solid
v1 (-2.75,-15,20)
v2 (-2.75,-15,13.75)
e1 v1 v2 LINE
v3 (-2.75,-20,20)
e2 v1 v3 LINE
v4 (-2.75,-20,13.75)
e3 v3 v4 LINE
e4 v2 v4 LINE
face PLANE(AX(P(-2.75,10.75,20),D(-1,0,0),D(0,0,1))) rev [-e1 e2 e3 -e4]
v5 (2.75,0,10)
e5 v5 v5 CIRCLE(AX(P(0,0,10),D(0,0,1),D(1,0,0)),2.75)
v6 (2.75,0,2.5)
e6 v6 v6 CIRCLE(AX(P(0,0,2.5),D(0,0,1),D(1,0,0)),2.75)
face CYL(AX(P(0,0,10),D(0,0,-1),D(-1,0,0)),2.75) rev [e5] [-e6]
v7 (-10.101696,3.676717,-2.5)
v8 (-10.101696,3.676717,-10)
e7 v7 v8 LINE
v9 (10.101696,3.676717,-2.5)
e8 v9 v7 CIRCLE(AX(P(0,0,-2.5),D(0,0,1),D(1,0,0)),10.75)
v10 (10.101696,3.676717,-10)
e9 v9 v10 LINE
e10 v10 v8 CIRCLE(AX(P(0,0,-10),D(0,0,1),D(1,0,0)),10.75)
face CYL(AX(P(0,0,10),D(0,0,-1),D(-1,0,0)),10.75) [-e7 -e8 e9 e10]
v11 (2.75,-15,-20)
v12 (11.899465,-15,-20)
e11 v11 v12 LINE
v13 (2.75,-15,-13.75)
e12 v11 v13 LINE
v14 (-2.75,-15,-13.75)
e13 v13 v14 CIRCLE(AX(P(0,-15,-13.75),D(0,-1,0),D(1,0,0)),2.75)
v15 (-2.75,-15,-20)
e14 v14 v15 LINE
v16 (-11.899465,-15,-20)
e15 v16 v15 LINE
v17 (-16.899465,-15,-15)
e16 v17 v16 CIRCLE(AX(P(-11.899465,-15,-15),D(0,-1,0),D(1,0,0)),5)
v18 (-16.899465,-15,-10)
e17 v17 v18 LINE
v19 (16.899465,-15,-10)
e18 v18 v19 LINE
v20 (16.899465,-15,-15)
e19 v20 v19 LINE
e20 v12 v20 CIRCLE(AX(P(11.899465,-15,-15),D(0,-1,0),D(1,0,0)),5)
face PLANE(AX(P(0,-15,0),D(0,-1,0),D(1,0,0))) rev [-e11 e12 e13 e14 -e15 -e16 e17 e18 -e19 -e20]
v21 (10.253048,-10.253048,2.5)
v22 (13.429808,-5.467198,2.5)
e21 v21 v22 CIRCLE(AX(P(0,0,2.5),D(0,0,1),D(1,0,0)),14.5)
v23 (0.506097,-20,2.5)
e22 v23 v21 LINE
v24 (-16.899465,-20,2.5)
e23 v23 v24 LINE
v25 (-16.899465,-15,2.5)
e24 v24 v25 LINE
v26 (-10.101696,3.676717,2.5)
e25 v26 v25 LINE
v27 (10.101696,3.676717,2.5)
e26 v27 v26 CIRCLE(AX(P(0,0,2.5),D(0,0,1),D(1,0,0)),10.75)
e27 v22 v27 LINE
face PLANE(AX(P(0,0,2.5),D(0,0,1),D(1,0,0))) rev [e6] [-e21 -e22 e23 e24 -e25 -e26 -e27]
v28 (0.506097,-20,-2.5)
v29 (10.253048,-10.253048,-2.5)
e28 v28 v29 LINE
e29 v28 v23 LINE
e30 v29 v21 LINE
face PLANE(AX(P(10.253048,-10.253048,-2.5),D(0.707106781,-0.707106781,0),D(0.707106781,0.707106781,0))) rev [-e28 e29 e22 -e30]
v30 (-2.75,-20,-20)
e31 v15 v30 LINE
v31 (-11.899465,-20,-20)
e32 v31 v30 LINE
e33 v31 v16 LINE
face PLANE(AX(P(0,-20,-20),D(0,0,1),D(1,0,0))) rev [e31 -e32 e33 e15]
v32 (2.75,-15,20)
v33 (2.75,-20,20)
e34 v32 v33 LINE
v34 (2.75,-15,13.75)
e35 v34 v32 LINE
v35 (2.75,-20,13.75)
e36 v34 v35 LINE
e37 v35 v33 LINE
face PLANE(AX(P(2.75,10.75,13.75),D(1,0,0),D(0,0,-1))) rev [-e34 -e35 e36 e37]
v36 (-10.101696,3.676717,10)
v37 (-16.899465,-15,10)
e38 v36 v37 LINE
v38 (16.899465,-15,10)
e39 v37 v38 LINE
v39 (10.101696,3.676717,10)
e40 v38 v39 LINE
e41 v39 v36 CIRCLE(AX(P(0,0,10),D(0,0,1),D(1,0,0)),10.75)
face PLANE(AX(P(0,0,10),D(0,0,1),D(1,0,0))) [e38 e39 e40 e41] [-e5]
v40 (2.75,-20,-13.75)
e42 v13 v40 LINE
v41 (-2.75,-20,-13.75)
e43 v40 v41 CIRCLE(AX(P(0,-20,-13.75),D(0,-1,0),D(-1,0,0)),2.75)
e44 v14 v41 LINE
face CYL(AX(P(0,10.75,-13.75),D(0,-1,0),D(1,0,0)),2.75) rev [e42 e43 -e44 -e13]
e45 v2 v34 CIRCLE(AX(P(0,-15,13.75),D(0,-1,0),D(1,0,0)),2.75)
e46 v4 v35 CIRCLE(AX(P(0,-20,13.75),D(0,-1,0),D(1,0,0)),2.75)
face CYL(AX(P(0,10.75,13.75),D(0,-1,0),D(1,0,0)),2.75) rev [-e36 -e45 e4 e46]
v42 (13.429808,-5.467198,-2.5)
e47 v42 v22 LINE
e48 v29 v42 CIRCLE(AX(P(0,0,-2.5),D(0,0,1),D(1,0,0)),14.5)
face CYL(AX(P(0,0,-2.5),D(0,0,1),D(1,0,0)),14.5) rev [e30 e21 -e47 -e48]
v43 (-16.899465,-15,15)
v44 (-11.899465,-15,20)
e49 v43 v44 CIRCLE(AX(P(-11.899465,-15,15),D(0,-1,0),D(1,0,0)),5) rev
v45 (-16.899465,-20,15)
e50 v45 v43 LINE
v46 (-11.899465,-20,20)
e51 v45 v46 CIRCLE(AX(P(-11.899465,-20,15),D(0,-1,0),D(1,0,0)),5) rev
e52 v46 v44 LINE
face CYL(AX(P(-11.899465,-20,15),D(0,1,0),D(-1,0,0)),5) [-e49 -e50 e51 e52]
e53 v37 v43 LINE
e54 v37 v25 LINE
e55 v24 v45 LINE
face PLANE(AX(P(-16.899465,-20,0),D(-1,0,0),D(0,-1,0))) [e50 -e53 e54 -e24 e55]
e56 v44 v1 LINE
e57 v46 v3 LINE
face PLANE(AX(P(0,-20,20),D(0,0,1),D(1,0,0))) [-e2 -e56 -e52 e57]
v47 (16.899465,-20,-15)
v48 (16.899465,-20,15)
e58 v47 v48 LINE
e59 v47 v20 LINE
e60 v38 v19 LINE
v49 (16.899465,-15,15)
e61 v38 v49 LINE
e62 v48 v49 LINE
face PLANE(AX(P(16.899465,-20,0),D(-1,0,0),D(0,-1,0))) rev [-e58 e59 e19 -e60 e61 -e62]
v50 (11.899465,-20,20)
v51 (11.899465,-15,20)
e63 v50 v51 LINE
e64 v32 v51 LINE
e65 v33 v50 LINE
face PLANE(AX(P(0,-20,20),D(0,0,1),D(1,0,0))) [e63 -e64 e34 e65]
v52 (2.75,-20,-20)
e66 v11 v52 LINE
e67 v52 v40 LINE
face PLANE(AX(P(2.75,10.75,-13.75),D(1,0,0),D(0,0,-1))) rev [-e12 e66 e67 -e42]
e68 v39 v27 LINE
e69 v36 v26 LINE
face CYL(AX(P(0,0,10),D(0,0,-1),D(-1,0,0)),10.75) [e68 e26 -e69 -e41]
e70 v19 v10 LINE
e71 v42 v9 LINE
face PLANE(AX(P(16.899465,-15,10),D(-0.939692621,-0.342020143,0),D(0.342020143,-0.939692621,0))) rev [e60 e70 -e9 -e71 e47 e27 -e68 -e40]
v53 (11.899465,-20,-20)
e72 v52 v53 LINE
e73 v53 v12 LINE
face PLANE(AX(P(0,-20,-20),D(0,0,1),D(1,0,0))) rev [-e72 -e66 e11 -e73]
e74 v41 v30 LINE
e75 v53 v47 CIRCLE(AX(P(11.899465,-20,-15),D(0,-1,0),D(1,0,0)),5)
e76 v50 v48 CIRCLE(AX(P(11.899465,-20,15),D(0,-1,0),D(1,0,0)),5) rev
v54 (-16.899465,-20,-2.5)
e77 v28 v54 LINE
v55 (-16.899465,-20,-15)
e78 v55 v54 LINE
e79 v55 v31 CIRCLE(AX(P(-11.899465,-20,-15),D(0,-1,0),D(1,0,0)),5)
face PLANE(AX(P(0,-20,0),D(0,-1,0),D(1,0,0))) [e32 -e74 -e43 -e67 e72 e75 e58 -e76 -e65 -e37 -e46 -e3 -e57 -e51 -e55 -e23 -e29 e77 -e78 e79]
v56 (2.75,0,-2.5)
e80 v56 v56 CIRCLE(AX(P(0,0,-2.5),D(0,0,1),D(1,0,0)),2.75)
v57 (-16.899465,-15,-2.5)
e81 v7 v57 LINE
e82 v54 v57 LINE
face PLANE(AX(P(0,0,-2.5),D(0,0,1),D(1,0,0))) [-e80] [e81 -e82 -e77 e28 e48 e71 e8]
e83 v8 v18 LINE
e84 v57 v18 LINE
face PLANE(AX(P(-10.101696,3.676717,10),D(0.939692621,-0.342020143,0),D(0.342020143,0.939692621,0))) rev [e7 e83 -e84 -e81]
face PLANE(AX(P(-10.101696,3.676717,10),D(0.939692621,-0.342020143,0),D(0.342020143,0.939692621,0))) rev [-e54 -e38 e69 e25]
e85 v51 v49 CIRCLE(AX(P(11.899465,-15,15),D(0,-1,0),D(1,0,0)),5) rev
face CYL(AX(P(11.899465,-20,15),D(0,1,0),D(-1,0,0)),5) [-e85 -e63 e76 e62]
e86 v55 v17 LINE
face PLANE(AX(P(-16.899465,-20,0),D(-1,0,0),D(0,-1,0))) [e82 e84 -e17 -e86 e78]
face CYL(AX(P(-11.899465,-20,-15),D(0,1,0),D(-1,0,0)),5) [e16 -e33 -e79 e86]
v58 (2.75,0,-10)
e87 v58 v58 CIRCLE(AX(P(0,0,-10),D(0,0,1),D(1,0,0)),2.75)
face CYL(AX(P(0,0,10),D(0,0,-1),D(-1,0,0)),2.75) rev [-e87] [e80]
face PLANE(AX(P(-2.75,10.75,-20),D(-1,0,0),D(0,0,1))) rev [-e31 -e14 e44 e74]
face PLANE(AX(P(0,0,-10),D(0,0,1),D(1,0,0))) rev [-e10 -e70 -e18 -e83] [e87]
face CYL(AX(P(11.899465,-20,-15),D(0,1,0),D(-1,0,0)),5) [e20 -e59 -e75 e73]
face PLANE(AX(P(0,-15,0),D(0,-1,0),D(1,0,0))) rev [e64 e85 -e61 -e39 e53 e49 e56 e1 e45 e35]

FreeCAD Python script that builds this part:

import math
import FreeCAD as App
import Part
import Sketcher

V = App.Vector
Q = App.Units.Quantity

doc = App.newDocument("Part")
params = doc.addObject("Spreadsheet::Sheet", "Params")
for row, (alias, value) in enumerate([
    ("sketch1_diameter", "5.5 mm"),
    ("sketch1_radius", "10.75 mm"),
    ("pad1_length", "20 mm"),
    ("sketch2_diameter", "29 mm"),
    ("pocket1_length", "5 mm"),
    ("sketch3_radius", "5 mm"),
    ("sketch3_height", "30 mm"),
    ("pad2_length", "5 mm"),
    ("sketch4_radius", "2.75 mm"),
    ("sketch4_height", "6.25 mm"),
    ("sketch5_radius", "14.5 mm"),
    ("sketch5_length", "30 mm"),
    ("pocket3_length", "5 mm"),
], start=1):
    params.set(f"A{row}", alias)
    params.set(f"B{row}", "=" + value)
    params.setAlias(f"B{row}", alias)

body = doc.addObject("PartDesign::Body", "Body")

sketch1 = doc.addObject("Sketcher::SketchObject", "Sketch")
body.addObject(sketch1)
sketch1.AttachmentSupport = (doc.XY_Plane, [""])
sketch1.MapMode = "FlatFace"
sketch1.addGeometry([
    Part.LineSegment(V(-10.101696, 3.676717, 0), V(-16.899465, -15, 0)),
    Part.LineSegment(V(-16.899465, -15, 0), V(16.899465, -15, 0)),
    Part.LineSegment(V(16.899465, -15, 0), V(10.101696, 3.676717, 0)),
    Part.ArcOfCircle(Part.Circle(V(0, 0, 0), V(0, 0, 1), 10.75), math.radians(20), math.radians(160)),
    Part.Circle(V(0, 0, 0), V(0, 0, 1), 2.75),
], False)
sketch1.addConstraint([
    Sketcher.Constraint("Coincident", 0, 2, 1, 1),
    Sketcher.Constraint("Coincident", 1, 2, 2, 1),
    Sketcher.Constraint("Tangent", 2, 2, 3, 1),
    Sketcher.Constraint("Tangent", 3, 2, 0, 1),
    Sketcher.Constraint("Horizontal", 1),
    Sketcher.Constraint("Coincident", 3, 3, -1, 1),
    Sketcher.Constraint("Coincident", 4, 3, -1, 1),
    Sketcher.Constraint("Horizontal", 2, 2, 3, 2),
    Sketcher.Constraint("Diameter", 4, 5.5),
    Sketcher.Constraint("Angle", 0, Q("-110 deg")),
    Sketcher.Constraint("Radius", 3, 10.75),
    Sketcher.Constraint("DistanceY", 0, 2, -1, 1, 15.0),
])
sketch1.setExpression("Constraints[8]", "Params.sketch1_diameter")
sketch1.setExpression("Constraints[10]", "Params.sketch1_radius")
pad1 = doc.addObject("PartDesign::Pad", "Pad")
body.addObject(pad1)
pad1.Profile = sketch1
pad1.setExpression("Length", "Params.pad1_length")
pad1.Midplane = True

sketch2 = doc.addObject("Sketcher::SketchObject", "Sketch001")
body.addObject(sketch2)
sketch2.AttachmentSupport = (doc.XY_Plane, [""])
sketch2.MapMode = "FlatFace"
sketch2.addGeometry(Part.Circle(V(0, 0, 0), V(0, 0, 1), 14.5), False)
sketch2.addConstraint([
    Sketcher.Constraint("Coincident", 0, 3, -1, 1),
    Sketcher.Constraint("Diameter", 0, 29.0),
])
sketch2.setExpression("Constraints[1]", "Params.sketch2_diameter")
pocket1 = doc.addObject("PartDesign::Pocket", "Pocket")
body.addObject(pocket1)
pocket1.Profile = sketch2
pocket1.setExpression("Length", "Params.pocket1_length")
pocket1.Midplane = True

sketch3 = doc.addObject("Sketcher::SketchObject", "Sketch002")
body.addObject(sketch3)
sketch3.AttachmentSupport = (doc.XZ_Plane, [""])
sketch3.MapMode = "FlatFace"
sketch3.AttachmentOffset = App.Placement(V(0, 0, 15), App.Rotation())
sketch3.addGeometry([
    Part.LineSegment(V(-16.899465, 15, 0), V(-16.899465, -15, 0)),
    Part.ArcOfCircle(Part.Circle(V(-11.899465, -15, 0), V(0, 0, 1), 5), math.radians(180), math.radians(270)),
    Part.LineSegment(V(-11.899465, -20, 0), V(11.899465, -20, 0)),
    Part.ArcOfCircle(Part.Circle(V(11.899465, -15, 0), V(0, 0, 1), 5), math.radians(-90), math.radians(0)),
    Part.LineSegment(V(16.899465, -15, 0), V(16.899465, 15, 0)),
    Part.ArcOfCircle(Part.Circle(V(11.899465, 15, 0), V(0, 0, 1), 5), math.radians(0), math.radians(90)),
    Part.LineSegment(V(11.899465, 20, 0), V(-11.899465, 20, 0)),
    Part.ArcOfCircle(Part.Circle(V(-11.899465, 15, 0), V(0, 0, 1), 5), math.radians(90), math.radians(180)),
], False)
sketch3.addConstraint([
    Sketcher.Constraint("Tangent", 0, 2, 1, 1),
    Sketcher.Constraint("Tangent", 1, 2, 2, 1),
    Sketcher.Constraint("Tangent", 2, 2, 3, 1),
    Sketcher.Constraint("Tangent", 3, 2, 4, 1),
    Sketcher.Constraint("Tangent", 4, 2, 5, 1),
    Sketcher.Constraint("Tangent", 5, 2, 6, 1),
    Sketcher.Constraint("Tangent", 6, 2, 7, 1),
    Sketcher.Constraint("Tangent", 7, 2, 0, 1),
    Sketcher.Constraint("Vertical", 0),
    Sketcher.Constraint("Horizontal", 2),
    Sketcher.Constraint("Vertical", 4),
    Sketcher.Constraint("Horizontal", 6),
    Sketcher.Constraint("Equal", 1, 3),
    Sketcher.Constraint("Equal", 3, 5),
    Sketcher.Constraint("Equal", 5, 7),
    Sketcher.Constraint("Symmetric", 1, 3, 5, 3, -1, 1),
    Sketcher.Constraint("Radius", 1, 5.0),
    Sketcher.Constraint("DistanceY", 0, 2, 0, 1, 30.0),
    Sketcher.Constraint("DistanceX", 2, 1, 2, 2, 23.798929),
])
sketch3.setExpression("Constraints[16]", "Params.sketch3_radius")
sketch3.setExpression("Constraints[17]", "Params.sketch3_height")
pad2 = doc.addObject("PartDesign::Pad", "Pad001")
body.addObject(pad2)
pad2.Profile = sketch3
pad2.setExpression("Length", "Params.pad2_length")

sketch4 = doc.addObject("Sketcher::SketchObject", "Sketch003")
body.addObject(sketch4)
sketch4.AttachmentSupport = (doc.XZ_Plane, [""])
sketch4.MapMode = "FlatFace"
sketch4.AttachmentOffset = App.Placement(V(0, 0, 20), App.Rotation())
sketch4.addGeometry([
    Part.LineSegment(V(-2.75, 20, 0), V(-2.75, 13.75, 0)),
    Part.ArcOfCircle(Part.Circle(V(0, 13.75, 0), V(0, 0, 1), 2.75), math.radians(180), math.radians(360)),
    Part.LineSegment(V(2.75, 13.75, 0), V(2.75, 20, 0)),
    Part.LineSegment(V(2.75, 20, 0), V(-2.75, 20, 0)),
    Part.LineSegment(V(-2.75, -13.75, 0), V(-2.75, -20, 0)),
    Part.LineSegment(V(-2.75, -20, 0), V(2.75, -20, 0)),
    Part.LineSegment(V(2.75, -20, 0), V(2.75, -13.75, 0)),
    Part.ArcOfCircle(Part.Circle(V(0, -13.75, 0), V(0, 0, 1), 2.75), math.radians(0), math.radians(180)),
], False)
sketch4.addConstraint([
    Sketcher.Constraint("Tangent", 0, 2, 1, 1),
    Sketcher.Constraint("Tangent", 1, 2, 2, 1),
    Sketcher.Constraint("Coincident", 2, 2, 3, 1),
    Sketcher.Constraint("Coincident", 3, 2, 0, 1),
    Sketcher.Constraint("Coincident", 4, 2, 5, 1),
    Sketcher.Constraint("Coincident", 5, 2, 6, 1),
    Sketcher.Constraint("Tangent", 6, 2, 7, 1),
    Sketcher.Constraint("Tangent", 7, 2, 4, 1),
    Sketcher.Constraint("Vertical", 0),
    Sketcher.Constraint("Vertical", 2),
    Sketcher.Constraint("Horizontal", 3),
    Sketcher.Constraint("Vertical", 4),
    Sketcher.Constraint("Horizontal", 5),
    Sketcher.Constraint("Vertical", 6),
    Sketcher.Constraint("Equal", 1, 7),
    Sketcher.Constraint("Symmetric", 1, 3, 7, 3, -1, 1),
    Sketcher.Constraint("Symmetric", 3, 2, 4, 2, -1),
    Sketcher.Constraint("Radius", 1, 2.75),
    Sketcher.Constraint("DistanceY", -1, 1, 2, 2, 20.0),
    Sketcher.Constraint("DistanceY", 0, 2, 0, 1, 6.25),
])
sketch4.setExpression("Constraints[17]", "Params.sketch4_radius")
sketch4.setExpression("Constraints[19]", "Params.sketch4_height")
pocket2 = doc.addObject("PartDesign::Pocket", "Pocket001")
body.addObject(pocket2)
pocket2.Profile = sketch4
pocket2.Type = "ThroughAll"

sketch5 = doc.addObject("Sketcher::SketchObject", "Sketch004")
body.addObject(sketch5)
sketch5.AttachmentSupport = (doc.XY_Plane, [""])
sketch5.MapMode = "FlatFace"
sketch5.addGeometry([
    Part.LineSegment(V(-10.253048, 10.253048, 0), V(-31.466252, -10.960155, 0)),
    Part.LineSegment(V(-31.466252, -10.960155, 0), V(-10.960155, -31.466252, 0)),
    Part.LineSegment(V(-10.960155, -31.466252, 0), V(10.253048, -10.253048, 0)),
    Part.ArcOfCircle(Part.Circle(V(0, 0, 0), V(0, 0, 1), 14.5), math.radians(-45), math.radians(135)),
], False)
sketch5.addConstraint([
    Sketcher.Constraint("Coincident", 0, 2, 1, 1),
    Sketcher.Constraint("Coincident", 1, 2, 2, 1),
    Sketcher.Constraint("Tangent", 2, 2, 3, 1),
    Sketcher.Constraint("Tangent", 3, 2, 0, 1),
    Sketcher.Constraint("Coincident", 3, 3, -1, 1),
    Sketcher.Constraint("Perpendicular", 0, 1),
    Sketcher.Constraint("Perpendicular", 1, 2),
    Sketcher.Constraint("Radius", 3, 14.5),
    Sketcher.Constraint("Angle", 0, Q("-135 deg")),
    Sketcher.Constraint("Distance", 0, 30.0),
])
sketch5.setExpression("Constraints[7]", "Params.sketch5_radius")
sketch5.setExpression("Constraints[9]", "Params.sketch5_length")
pocket3 = doc.addObject("PartDesign::Pocket", "Pocket002")
body.addObject(pocket3)
pocket3.Profile = sketch5
pocket3.setExpression("Length", "Params.pocket3_length")
pocket3.Midplane = True

doc.recompute()
